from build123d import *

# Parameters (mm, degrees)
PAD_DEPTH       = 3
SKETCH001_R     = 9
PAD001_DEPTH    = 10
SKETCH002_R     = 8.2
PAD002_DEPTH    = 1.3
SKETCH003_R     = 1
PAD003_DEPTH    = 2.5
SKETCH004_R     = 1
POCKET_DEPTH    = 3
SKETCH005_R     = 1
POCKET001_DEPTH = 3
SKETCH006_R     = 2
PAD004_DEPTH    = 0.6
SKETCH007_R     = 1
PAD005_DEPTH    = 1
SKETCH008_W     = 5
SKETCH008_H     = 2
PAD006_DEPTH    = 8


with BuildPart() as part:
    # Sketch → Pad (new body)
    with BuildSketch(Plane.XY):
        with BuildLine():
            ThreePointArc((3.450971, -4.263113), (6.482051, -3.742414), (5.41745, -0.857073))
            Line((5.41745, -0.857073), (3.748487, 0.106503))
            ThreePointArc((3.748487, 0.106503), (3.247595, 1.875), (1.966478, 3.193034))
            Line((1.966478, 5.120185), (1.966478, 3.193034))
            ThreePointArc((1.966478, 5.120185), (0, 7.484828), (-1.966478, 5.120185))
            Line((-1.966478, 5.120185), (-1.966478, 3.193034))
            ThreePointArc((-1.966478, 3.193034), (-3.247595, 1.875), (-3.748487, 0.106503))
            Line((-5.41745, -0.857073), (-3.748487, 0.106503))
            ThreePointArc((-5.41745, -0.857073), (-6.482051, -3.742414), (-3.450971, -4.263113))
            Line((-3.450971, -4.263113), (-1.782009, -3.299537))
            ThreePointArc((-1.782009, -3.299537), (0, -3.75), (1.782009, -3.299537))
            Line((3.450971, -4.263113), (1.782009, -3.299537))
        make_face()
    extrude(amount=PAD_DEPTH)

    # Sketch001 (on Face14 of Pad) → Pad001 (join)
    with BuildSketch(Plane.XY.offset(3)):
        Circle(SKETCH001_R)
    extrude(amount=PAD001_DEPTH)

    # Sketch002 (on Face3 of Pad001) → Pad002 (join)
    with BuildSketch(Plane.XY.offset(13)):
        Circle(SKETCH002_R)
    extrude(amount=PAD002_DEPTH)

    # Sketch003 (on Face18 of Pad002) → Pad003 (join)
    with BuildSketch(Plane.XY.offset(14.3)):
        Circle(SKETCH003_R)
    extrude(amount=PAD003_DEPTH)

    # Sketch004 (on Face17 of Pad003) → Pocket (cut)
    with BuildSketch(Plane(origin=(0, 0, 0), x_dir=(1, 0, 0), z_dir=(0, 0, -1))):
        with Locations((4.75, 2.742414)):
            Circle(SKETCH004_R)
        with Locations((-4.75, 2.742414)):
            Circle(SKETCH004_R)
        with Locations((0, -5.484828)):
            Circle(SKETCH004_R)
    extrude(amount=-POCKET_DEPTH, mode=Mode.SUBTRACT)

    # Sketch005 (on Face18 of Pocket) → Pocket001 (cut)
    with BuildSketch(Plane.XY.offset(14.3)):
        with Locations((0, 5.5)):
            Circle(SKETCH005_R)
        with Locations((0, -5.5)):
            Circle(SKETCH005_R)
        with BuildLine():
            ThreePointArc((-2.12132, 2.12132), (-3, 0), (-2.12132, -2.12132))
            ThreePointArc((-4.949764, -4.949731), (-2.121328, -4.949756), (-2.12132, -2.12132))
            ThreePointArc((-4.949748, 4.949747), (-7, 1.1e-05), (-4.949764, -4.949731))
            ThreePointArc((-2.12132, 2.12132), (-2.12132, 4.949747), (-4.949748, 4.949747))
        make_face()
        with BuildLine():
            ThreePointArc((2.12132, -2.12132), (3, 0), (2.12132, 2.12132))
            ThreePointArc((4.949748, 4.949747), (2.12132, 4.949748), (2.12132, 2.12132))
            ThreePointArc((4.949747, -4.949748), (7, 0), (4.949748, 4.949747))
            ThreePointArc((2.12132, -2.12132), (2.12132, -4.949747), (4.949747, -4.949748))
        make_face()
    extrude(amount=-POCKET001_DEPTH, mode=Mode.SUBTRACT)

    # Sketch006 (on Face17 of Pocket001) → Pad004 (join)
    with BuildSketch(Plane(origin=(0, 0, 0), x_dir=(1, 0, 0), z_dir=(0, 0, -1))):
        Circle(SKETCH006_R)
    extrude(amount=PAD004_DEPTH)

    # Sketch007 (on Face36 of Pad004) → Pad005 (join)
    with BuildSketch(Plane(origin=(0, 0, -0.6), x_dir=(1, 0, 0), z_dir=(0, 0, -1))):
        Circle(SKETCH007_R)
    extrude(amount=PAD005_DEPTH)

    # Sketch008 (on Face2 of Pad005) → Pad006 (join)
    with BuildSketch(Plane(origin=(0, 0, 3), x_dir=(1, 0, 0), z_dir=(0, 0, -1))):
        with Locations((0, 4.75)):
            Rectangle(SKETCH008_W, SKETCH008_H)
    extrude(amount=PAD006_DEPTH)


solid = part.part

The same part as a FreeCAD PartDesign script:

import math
import FreeCAD as App
import Part
import Sketcher
Q = App.Units.Quantity

doc = App.newDocument("Part")
body = doc.addObject("PartDesign::Body", "Body")

# Sketch on XY plane
sketch1 = body.newObject("Sketcher::SketchObject", "Sketch")
sketch1.AttachmentSupport = (doc.getObject("XY_Plane"), [""])
sketch1.MapMode = "FlatFace"
sketch1.addGeometry([
    Part.ArcOfCircle(Part.Circle(App.Vector(4.7, -2.7, 0), App.Vector(0, 0, 1), 2), math.radians(-131), math.radians(71)),  # 0
    Part.LineSegment(App.Vector(5.4, -0.9, 0), App.Vector(3.7, 0.1, 0)),  # 1
    Part.ArcOfCircle(Part.Circle(App.Vector(0, 0, 0), App.Vector(0, 0, 1), 3.8), math.radians(2), math.radians(58)),  # 2
    Part.LineSegment(App.Vector(2, 3.2, 0), App.Vector(2, 5.1, 0)),  # 3
    Part.ArcOfCircle(Part.Circle(App.Vector(0, 5.5, 0), App.Vector(0, 0, 1), 2), math.radians(-11), math.radians(191)),  # 4
    Part.LineSegment(App.Vector(-2, 5.1, 0), App.Vector(-2, 3.2, 0)),  # 5
    Part.ArcOfCircle(Part.Circle(App.Vector(0, 0, 0), App.Vector(0, 0, 1), 3.8), math.radians(122), math.radians(178)),  # 6
    Part.LineSegment(App.Vector(-3.7, 0.1, 0), App.Vector(-5.4, -0.9, 0)),  # 7
    Part.ArcOfCircle(Part.Circle(App.Vector(-4.7, -2.7, 0), App.Vector(0, 0, 1), 2), math.radians(109), math.radians(311)),  # 8
    Part.LineSegment(App.Vector(-3.5, -4.3, 0), App.Vector(-1.8, -3.3, 0)),  # 9
    Part.ArcOfCircle(Part.Circle(App.Vector(0, 0, 0), App.Vector(0, 0, 1), 3.8), math.radians(-118), math.radians(-62)),  # 10
    Part.LineSegment(App.Vector(1.8, -3.3, 0), App.Vector(3.5, -4.3, 0)),  # 11
], False)
sketch1.addConstraint([
    Sketcher.Constraint("Coincident", 0, 2, 1, 1),
    Sketcher.Constraint("Coincident", 1, 2, 2, 1),
    Sketcher.Constraint("Coincident", 2, 2, 3, 1),
    Sketcher.Constraint("Coincident", 3, 2, 4, 1),
    Sketcher.Constraint("Coincident", 4, 2, 5, 1),
    Sketcher.Constraint("Coincident", 5, 2, 6, 1),
    Sketcher.Constraint("Coincident", 6, 2, 7, 1),
    Sketcher.Constraint("Coincident", 7, 2, 8, 1),
    Sketcher.Constraint("Coincident", 8, 2, 9, 1),
    Sketcher.Constraint("Coincident", 9, 2, 10, 1),
    Sketcher.Constraint("Coincident", 10, 2, 11, 1),
    Sketcher.Constraint("Coincident", 11, 2, 0, 1),
    Sketcher.Constraint("Vertical", 3),
    Sketcher.Constraint("Vertical", 5),
    Sketcher.Constraint("Coincident", 2, 3, -1, 1),
    Sketcher.Constraint("Coincident", 6, 3, -1, 1),
    Sketcher.Constraint("Coincident", 10, 3, -1, 1),
    Sketcher.Constraint("Equal", 0, 4),
    Sketcher.Constraint("Equal", 2, 6),
    Sketcher.Constraint("Equal", 4, 8),
    Sketcher.Constraint("Equal", 6, 10),
    Sketcher.Constraint("Symmetric", 0, 3, 8, 3, -2),
    Sketcher.Constraint("Symmetric", 3, 2, 4, 2, -2),
    Sketcher.Constraint("Parallel", 7, 9),
    Sketcher.Constraint("Parallel", 1, 11),
    Sketcher.Constraint("Horizontal", 1, 2, 6, 2),
    Sketcher.Constraint("Horizontal", 0, 2, 7, 2),
    Sketcher.Constraint("Horizontal", 9, 2, 10, 2),
    Sketcher.Constraint("Equal", 7, 9),
    Sketcher.Constraint("Radius", 0, 2.0),
    Sketcher.Constraint("Angle", 1, Q("150.000006 deg")),
    Sketcher.Constraint("Radius", 2, 3.750001),
    Sketcher.Constraint("DistanceX", 8, 3, 0, 3, 9.5),
    Sketcher.Constraint("DistanceY", 3, 1, 3, 2, 1.927151),
    Sketcher.Constraint("DistanceY", 0, 2, 4, 3, 6.341901),
    Sketcher.Constraint("DistanceY", 8, 2, 8, 3, 1.520699),
    Sketcher.Constraint("Distance", 9, 1.927151),
])
pad1 = body.newObject("PartDesign::Pad", "Pad")
pad1.Profile = sketch1
pad1.Length = 3

# Sketch on XY plane
sketch2 = body.newObject("Sketcher::SketchObject", "Sketch001")
sketch2.AttachmentSupport = (doc.getObject("XY_Plane"), [""])
sketch2.MapMode = "FlatFace"
sketch2.AttachmentOffset = App.Placement(App.Vector(0, 0, 3), App.Rotation())
sketch2.addGeometry(Part.Circle(App.Vector(0, 0, 0), App.Vector(0, 0, 1), 9), False)
sketch2.addConstraint([
    Sketcher.Constraint("Coincident", 0, 3, -1, 1),
    Sketcher.Constraint("Diameter", 0, 18.0),
])
pad2 = body.newObject("PartDesign::Pad", "Pad001")
pad2.Profile = sketch2
pad2.Length = 10

# Sketch on XY plane
sketch3 = body.newObject("Sketcher::SketchObject", "Sketch002")
sketch3.AttachmentSupport = (doc.getObject("XY_Plane"), [""])
sketch3.MapMode = "FlatFace"
sketch3.AttachmentOffset = App.Placement(App.Vector(0, 0, 13), App.Rotation())
sketch3.addGeometry(Part.Circle(App.Vector(0, 0, 0), App.Vector(0, 0, 1), 8), False)
sketch3.addConstraint([
    Sketcher.Constraint("Coincident", 0, 3, -1, 1),
    Sketcher.Constraint("Diameter", 0, 16.4),
])
pad3 = body.newObject("PartDesign::Pad", "Pad002")
pad3.Profile = sketch3
pad3.Length = 1.3

# Sketch on XY plane
sketch4 = body.newObject("Sketcher::SketchObject", "Sketch003")
sketch4.AttachmentSupport = (doc.getObject("XY_Plane"), [""])
sketch4.MapMode = "FlatFace"
sketch4.AttachmentOffset = App.Placement(App.Vector(0, 0, 14.3), App.Rotation())
sketch4.addGeometry(Part.Circle(App.Vector(0, 0, 0), App.Vector(0, 0, 1), 1), False)
sketch4.addConstraint([
    Sketcher.Constraint("Coincident", 0, 3, -1, 1),
    Sketcher.Constraint("Diameter", 0, 2.0),
])
pad4 = body.newObject("PartDesign::Pad", "Pad003")
pad4.Profile = sketch4
pad4.Length = 2.5

# Sketch on XY plane
sketch5 = body.newObject("Sketcher::SketchObject", "Sketch004")
sketch5.AttachmentSupport = (doc.getObject("XY_Plane"), [""])
sketch5.MapMode = "FlatFace"
sketch5.addGeometry([
    Part.Circle(App.Vector(4.8, -2.7, 0), App.Vector(0, 0, 1), 1),
    Part.Circle(App.Vector(-4.8, -2.7, 0), App.Vector(0, 0, 1), 1),
    Part.Circle(App.Vector(0, 5.5, 0), App.Vector(0, 0, 1), 1),
], False)
sketch5.addConstraint([
    Sketcher.Constraint("Equal", 0, 1),
    Sketcher.Constraint("Equal", 1, 2),
    Sketcher.Constraint("Symmetric", 0, 3, 1, 3, -2),
    Sketcher.Constraint("PointOnObject", 2, 3, -2),
    Sketcher.Constraint("Diameter", 0, 2.0),
    Sketcher.Constraint("DistanceX", 1, 3, 0, 3, 9.5),
    Sketcher.Constraint("DistanceY", -1, 1, 2, 3, 5.484828),
    Sketcher.Constraint("DistanceY", 0, 3, -1, 1, 2.742414),
])
pocket1 = body.newObject("PartDesign::Pocket", "Pocket")
pocket1.Profile = sketch5
pocket1.Length = 3
pocket1.Reversed = True

# Sketch on XY plane
sketch6 = body.newObject("Sketcher::SketchObject", "Sketch005")
sketch6.AttachmentSupport = (doc.getObject("XY_Plane"), [""])
sketch6.MapMode = "FlatFace"
sketch6.AttachmentOffset = App.Placement(App.Vector(0, 0, 14.3), App.Rotation())
sketch6.addGeometry([
    Part.Circle(App.Vector(0, 5.5, 0), App.Vector(0, 0, 1), 1),  # 0
    Part.Circle(App.Vector(0, -5.5, 0), App.Vector(0, 0, 1), 1),  # 1
    Part.ArcOfCircle(Part.Circle(App.Vector(0, 0, 0), App.Vector(0, 0, 1), 3), math.radians(135), math.radians(225)),  # 2
    Part.ArcOfCircle(Part.Circle(App.Vector(-3.5, 3.5, 0), App.Vector(0, 0, 1), 2), math.radians(-45), math.radians(135)),  # 3
    Part.ArcOfCircle(Part.Circle(App.Vector(0, 0, 0), App.Vector(0, 0, 1), 7), math.radians(135), math.radians(225)),  # 4
    Part.ArcOfCircle(Part.Circle(App.Vector(-3.5, -3.5, 0), App.Vector(0, 0, 1), 2), math.radians(-135), math.radians(45)),  # 5
    Part.ArcOfCircle(Part.Circle(App.Vector(0, 0, 0), App.Vector(0, 0, 1), 3), math.radians(-45), math.radians(45)),  # 6
    Part.ArcOfCircle(Part.Circle(App.Vector(3.5, -3.5, 0), App.Vector(0, 0, 1), 2), math.radians(135), math.radians(315)),  # 7
    Part.ArcOfCircle(Part.Circle(App.Vector(0, 0, 0), App.Vector(0, 0, 1), 7), math.radians(-45), math.radians(45)),  # 8
    Part.ArcOfCircle(Part.Circle(App.Vector(3.5, 3.5, 0), App.Vector(0, 0, 1), 2), math.radians(45), math.radians(225)),  # 9
], False)
sketch6.addConstraint([
    Sketcher.Constraint("Tangent", 2, 1, 3, 1),
    Sketcher.Constraint("Tangent", 3, 2, 4, 1),
    Sketcher.Constraint("Coincident", 4, 2, 5, 1),
    Sketcher.Constraint("Tangent", 5, 2, 2, 2),
    Sketcher.Constraint("Tangent", 6, 1, 7, 1),
    Sketcher.Constraint("Tangent", 7, 2, 8, 1),
    Sketcher.Constraint("Tangent", 8, 2, 9, 1),
    Sketcher.Constraint("Tangent", 9, 2, 6, 2),
    Sketcher.Constraint("Coincident", 2, 3, -1, 1),
    Sketcher.Constraint("Coincident", 4, 3, -1, 1),
    Sketcher.Constraint("Coincident", 6, 3, -1, 1),
    Sketcher.Constraint("Coincident", 8, 3, -1, 1),
    Sketcher.Constraint("Equal", 0, 1),
    Sketcher.Constraint("Equal", 2, 6),
    Sketcher.Constraint("Equal", 5, 7),
    Sketcher.Constraint("Symmetric", 0, 3, 1, 3, -1, 1),
    Sketcher.Constraint("PointOnObject", 0, 3, -2),
    Sketcher.Constraint("Horizontal", 5, 3, 7, 3),
    Sketcher.Constraint("Horizontal", 3, 3, 9, 3),
    Sketcher.Constraint("Vertical", 3, 3, 5, 3),
    Sketcher.Constraint("Diameter", 0, 2.0),
    Sketcher.Constraint("Radius", 2, 2.999998),
    Sketcher.Constraint("Radius", 3, 2.0),
    Sketcher.Constraint("DistanceY", 1, 3, 0, 3, 11.0),
    Sketcher.Constraint("DistanceX", 2, 1, -1, 1, 2.12132),
    Sketcher.Constraint("DistanceY", 4, 2, -1, 1, 4.949731),
])
pocket2 = body.newObject("PartDesign::Pocket", "Pocket001")
pocket2.Profile = sketch6
pocket2.Length = 3

# Sketch on XY plane
sketch7 = body.newObject("Sketcher::SketchObject", "Sketch006")
sketch7.AttachmentSupport = (doc.getObject("XY_Plane"), [""])
sketch7.MapMode = "FlatFace"
sketch7.addGeometry(Part.Circle(App.Vector(0, 0, 0), App.Vector(0, 0, 1), 2), False)
sketch7.addConstraint([
    Sketcher.Constraint("Coincident", 0, 3, -1, 1),
    Sketcher.Constraint("Diameter", 0, 4.0),
])
pad5 = body.newObject("PartDesign::Pad", "Pad004")
pad5.Profile = sketch7
pad5.Length = 0.6
pad5.Reversed = True

# Sketch on XY plane
sketch8 = body.newObject("Sketcher::SketchObject", "Sketch007")
sketch8.AttachmentSupport = (doc.getObject("XY_Plane"), [""])
sketch8.MapMode = "FlatFace"
sketch8.AttachmentOffset = App.Placement(App.Vector(0, 0, -0.6), App.Rotation())
sketch8.addGeometry(Part.Circle(App.Vector(0, 0, 0), App.Vector(0, 0, 1), 1), False)
sketch8.addConstraint([
    Sketcher.Constraint("Coincident", 0, 3, -1, 1),
    Sketcher.Constraint("Diameter", 0, 2.0),
])
pad6 = body.newObject("PartDesign::Pad", "Pad005")
pad6.Profile = sketch8
pad6.Length = 1
pad6.Reversed = True

# Sketch on XY plane
sketch9 = body.newObject("Sketcher::SketchObject", "Sketch008")
sketch9.AttachmentSupport = (doc.getObject("XY_Plane"), [""])
sketch9.MapMode = "FlatFace"
sketch9.AttachmentOffset = App.Placement(App.Vector(0, 0, 3), App.Rotation())
sketch9.addGeometry([
    Part.LineSegment(App.Vector(-2.5, -5.8, 0), App.Vector(-2.5, -3.8, 0)),
    Part.LineSegment(App.Vector(-2.5, -3.8, 0), App.Vector(2.5, -3.8, 0)),
    Part.LineSegment(App.Vector(2.5, -3.8, 0), App.Vector(2.5, -5.8, 0)),
    Part.LineSegment(App.Vector(2.5, -5.8, 0), App.Vector(-2.5, -5.8, 0)),
], False)
sketch9.addConstraint([
    Sketcher.Constraint("Coincident", 0, 2, 1, 1),
    Sketcher.Constraint("Coincident", 1, 2, 2, 1),
    Sketcher.Constraint("Coincident", 2, 2, 3, 1),
    Sketcher.Constraint("Coincident", 3, 2, 0, 1),
    Sketcher.Constraint("Vertical", 0),
    Sketcher.Constraint("Horizontal", 1),
    Sketcher.Constraint("Vertical", 2),
    Sketcher.Constraint("Horizontal", 3),
    Sketcher.Constraint("DistanceX", 1, 1, 1, 2, 5.0),
    Sketcher.Constraint("DistanceY", 0, 1, 0, 2, 2.0),
    Sketcher.Constraint("DistanceX", 0, 2, -1, 1, 2.5),
    Sketcher.Constraint("DistanceY", 0, 2, -1, 1, 3.75),
])
pad7 = body.newObject("PartDesign::Pad", "Pad006")
pad7.Profile = sketch9
pad7.Length = 8
pad7.Reversed = True

doc.recompute()
